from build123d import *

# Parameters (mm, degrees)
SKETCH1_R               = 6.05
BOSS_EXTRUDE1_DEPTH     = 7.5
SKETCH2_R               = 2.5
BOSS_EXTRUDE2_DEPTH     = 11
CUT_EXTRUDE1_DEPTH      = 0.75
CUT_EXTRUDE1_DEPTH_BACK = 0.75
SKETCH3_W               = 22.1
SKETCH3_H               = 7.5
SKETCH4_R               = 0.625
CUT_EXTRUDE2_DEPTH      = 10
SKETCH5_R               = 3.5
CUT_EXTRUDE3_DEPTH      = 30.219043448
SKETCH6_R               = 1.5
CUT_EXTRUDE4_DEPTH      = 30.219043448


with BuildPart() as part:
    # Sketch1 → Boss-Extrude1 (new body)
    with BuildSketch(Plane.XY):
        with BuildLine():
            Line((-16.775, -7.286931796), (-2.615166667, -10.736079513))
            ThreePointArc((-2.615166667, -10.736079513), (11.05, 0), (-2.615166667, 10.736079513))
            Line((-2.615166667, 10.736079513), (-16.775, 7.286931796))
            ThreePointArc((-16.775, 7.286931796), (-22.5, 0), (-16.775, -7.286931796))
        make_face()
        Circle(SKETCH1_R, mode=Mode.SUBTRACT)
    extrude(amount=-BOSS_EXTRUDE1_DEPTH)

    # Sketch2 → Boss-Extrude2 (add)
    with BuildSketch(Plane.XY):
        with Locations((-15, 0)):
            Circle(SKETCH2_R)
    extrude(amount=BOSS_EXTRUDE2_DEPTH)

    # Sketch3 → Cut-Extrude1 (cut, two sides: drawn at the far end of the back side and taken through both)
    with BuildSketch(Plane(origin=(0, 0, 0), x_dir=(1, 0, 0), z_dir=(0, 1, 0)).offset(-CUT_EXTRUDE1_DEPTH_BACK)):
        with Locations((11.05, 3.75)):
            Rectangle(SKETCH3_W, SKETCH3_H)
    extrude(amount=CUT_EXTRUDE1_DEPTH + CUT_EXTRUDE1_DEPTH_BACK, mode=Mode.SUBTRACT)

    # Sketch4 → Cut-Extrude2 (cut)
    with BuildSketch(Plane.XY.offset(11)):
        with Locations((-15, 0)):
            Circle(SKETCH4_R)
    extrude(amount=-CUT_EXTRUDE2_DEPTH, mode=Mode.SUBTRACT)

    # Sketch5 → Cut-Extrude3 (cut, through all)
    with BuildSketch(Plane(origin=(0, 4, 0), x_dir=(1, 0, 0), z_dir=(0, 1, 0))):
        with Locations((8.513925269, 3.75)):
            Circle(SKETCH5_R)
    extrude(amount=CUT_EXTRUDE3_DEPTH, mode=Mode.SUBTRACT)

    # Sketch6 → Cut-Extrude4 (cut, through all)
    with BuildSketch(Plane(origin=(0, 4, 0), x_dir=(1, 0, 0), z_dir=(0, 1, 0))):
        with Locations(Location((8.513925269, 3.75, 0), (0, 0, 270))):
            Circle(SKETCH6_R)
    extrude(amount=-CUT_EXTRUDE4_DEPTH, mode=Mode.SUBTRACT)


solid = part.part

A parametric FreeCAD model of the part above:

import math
import FreeCAD as App
import Part
import Sketcher


def add_polygon(sketch, points):
    """Adds a closed chain of lines whose ends are joined by coincident constraints."""
    first, n = sketch.GeometryCount, len(points)
    for a, b in zip(points, points[1:] + points[:1]):
        sketch.addGeometry(Part.LineSegment(App.Vector(*a, 0), App.Vector(*b, 0)), False)
    for i in range(n):
        sketch.addConstraint(Sketcher.Constraint("Coincident", first + i, 2, first + (i + 1) % n, 1))

doc = App.newDocument("Part")
body = doc.addObject("PartDesign::Body", "Body")

# Sketch on XY plane
sketch1 = body.newObject("Sketcher::SketchObject", "Sketch")
sketch1.AttachmentSupport = (doc.getObject("XY_Plane"), [""])
sketch1.MapMode = "FlatFace"
sketch1.addGeometry(Part.LineSegment(App.Vector(-17, -7, 0), App.Vector(-3, -11, 0)), False)
sketch1.addGeometry(Part.ArcOfCircle(Part.Circle(App.Vector(0, 0, 0), App.Vector(0, 0, 1), 11), math.radians(-104), math.radians(104)), False)
sketch1.addGeometry(Part.LineSegment(App.Vector(-3, 11, 0), App.Vector(-17, 7, 0)), False)
sketch1.addGeometry(Part.ArcOfCircle(Part.Circle(App.Vector(-15, 0, 0), App.Vector(0, 0, 1), 8), math.radians(104), math.radians(256)), False)
sketch1.addGeometry(Part.Circle(App.Vector(0, 0, 0), App.Vector(0, 0, 1), 6), False)
sketch1.addConstraint(Sketcher.Constraint("Tangent", 0, 2, 1, 1))
sketch1.addConstraint(Sketcher.Constraint("Tangent", 1, 2, 2, 1))
sketch1.addConstraint(Sketcher.Constraint("Tangent", 2, 2, 3, 1))
sketch1.addConstraint(Sketcher.Constraint("Tangent", 3, 2, 0, 1))
sketch1.addConstraint(Sketcher.Constraint("Coincident", 1, 3, -1, 1))
sketch1.addConstraint(Sketcher.Constraint("Coincident", 4, 3, -1, 1))
sketch1.addConstraint(Sketcher.Constraint("PointOnObject", 3, 3, -1))
sketch1.addConstraint(Sketcher.Constraint("Diameter", 4, 12.1))
sketch1.addConstraint(Sketcher.Constraint("Radius", 3, 7.5))
sketch1.addConstraint(Sketcher.Constraint("Radius", 1, 11.05))
sketch1.addConstraint(Sketcher.Constraint("DistanceX", 3, 3, -1, 1, 15.0))
pad1 = body.newObject("PartDesign::Pad", "Pad")
pad1.Profile = sketch1
pad1.Length = 7.5
pad1.Reversed = True

# Sketch on XY plane
sketch2 = body.newObject("Sketcher::SketchObject", "Sketch001")
sketch2.AttachmentSupport = (doc.getObject("XY_Plane"), [""])
sketch2.MapMode = "FlatFace"
sketch2.addGeometry(Part.Circle(App.Vector(-15, 0, 0), App.Vector(0, 0, 1), 2.5), False)
sketch2.addConstraint(Sketcher.Constraint("PointOnObject", 0, 3, -1))
sketch2.addConstraint(Sketcher.Constraint("Diameter", 0, 5.0))
sketch2.addConstraint(Sketcher.Constraint("DistanceX", 0, 3, -1, 1, 15.0))
pad2 = body.newObject("PartDesign::Pad", "Pad001")
pad2.Profile = sketch2
pad2.Length = 11

# Sketch on XZ plane
sketch3 = body.newObject("Sketcher::SketchObject", "Sketch002")
sketch3.AttachmentSupport = (doc.getObject("XZ_Plane"), [""])
sketch3.MapMode = "FlatFace"
add_polygon(sketch3, [(0, -8), (0, 0), (22, 0), (22, -8)])  # lines 0-3
sketch3.addConstraint(Sketcher.Constraint("Vertical", 0))
sketch3.addConstraint(Sketcher.Constraint("Horizontal", 1))
sketch3.addConstraint(Sketcher.Constraint("Vertical", 2))
sketch3.addConstraint(Sketcher.Constraint("Horizontal", 3))
sketch3.addConstraint(Sketcher.Constraint("Coincident", 0, 2, -1, 1))
sketch3.addConstraint(Sketcher.Constraint("DistanceX", 1, 1, 1, 2, 22.1))
sketch3.addConstraint(Sketcher.Constraint("DistanceY", 0, 1, 0, 2, 7.5))
pocket1 = body.newObject("PartDesign::Pocket", "Pocket")
pocket1.Profile = sketch3
pocket1.Type = "TwoLengths"
pocket1.Length = 0.75
pocket1.Length2 = 0.75

# Sketch on XY plane
sketch4 = body.newObject("Sketcher::SketchObject", "Sketch003")
sketch4.AttachmentSupport = (doc.getObject("XY_Plane"), [""])
sketch4.MapMode = "FlatFace"
sketch4.AttachmentOffset = App.Placement(App.Vector(0, 0, 11), App.Rotation())
sketch4.addGeometry(Part.Circle(App.Vector(-15, 0, 0), App.Vector(0, 0, 1), 0.6), False)
sketch4.addConstraint(Sketcher.Constraint("PointOnObject", 0, 3, -1))
sketch4.addConstraint(Sketcher.Constraint("Diameter", 0, 1.25))
sketch4.addConstraint(Sketcher.Constraint("DistanceX", 0, 3, -1, 1, 15.0))
pocket2 = body.newObject("PartDesign::Pocket", "Pocket001")
pocket2.Profile = sketch4
pocket2.Length = 10

# Sketch on XZ plane
sketch5 = body.newObject("Sketcher::SketchObject", "Sketch004")
sketch5.AttachmentSupport = (doc.getObject("XZ_Plane"), [""])
sketch5.MapMode = "FlatFace"
sketch5.AttachmentOffset = App.Placement(App.Vector(0, 0, -4), App.Rotation())
sketch5.addGeometry(Part.Circle(App.Vector(8.5, -3.8, 0), App.Vector(0, 0, 1), 3.5), False)
sketch5.addConstraint(Sketcher.Constraint("Diameter", 0, 7.0))
sketch5.addConstraint(Sketcher.Constraint("DistanceY", 0, 3, -1, 1, 3.75))
sketch5.addConstraint(Sketcher.Constraint("DistanceX", -1, 1, 0, 3, 8.513925))
pocket3 = body.newObject("PartDesign::Pocket", "Pocket002")
pocket3.Profile = sketch5
pocket3.Type = "ThroughAll"

# Sketch on XZ plane
sketch6 = body.newObject("Sketcher::SketchObject", "Sketch005")
sketch6.AttachmentSupport = (doc.getObject("XZ_Plane"), [""])
sketch6.MapMode = "FlatFace"
sketch6.AttachmentOffset = App.Placement(App.Vector(0, 0, -4), App.Rotation())
sketch6.addGeometry(Part.Circle(App.Vector(8.5, -3.8, 0), App.Vector(0, 0, 1), 1.5), False)
sketch6.addConstraint(Sketcher.Constraint("Diameter", 0, 3.0))
sketch6.addConstraint(Sketcher.Constraint("DistanceY", 0, 3, -1, 1, 3.75))
sketch6.addConstraint(Sketcher.Constraint("DistanceX", -1, 1, 0, 3, 8.513925))
pocket4 = body.newObject("PartDesign::Pocket", "Pocket003")
pocket4.Profile = sketch6
pocket4.Type = "ThroughAll"
pocket4.Reversed = True

doc.recompute()
